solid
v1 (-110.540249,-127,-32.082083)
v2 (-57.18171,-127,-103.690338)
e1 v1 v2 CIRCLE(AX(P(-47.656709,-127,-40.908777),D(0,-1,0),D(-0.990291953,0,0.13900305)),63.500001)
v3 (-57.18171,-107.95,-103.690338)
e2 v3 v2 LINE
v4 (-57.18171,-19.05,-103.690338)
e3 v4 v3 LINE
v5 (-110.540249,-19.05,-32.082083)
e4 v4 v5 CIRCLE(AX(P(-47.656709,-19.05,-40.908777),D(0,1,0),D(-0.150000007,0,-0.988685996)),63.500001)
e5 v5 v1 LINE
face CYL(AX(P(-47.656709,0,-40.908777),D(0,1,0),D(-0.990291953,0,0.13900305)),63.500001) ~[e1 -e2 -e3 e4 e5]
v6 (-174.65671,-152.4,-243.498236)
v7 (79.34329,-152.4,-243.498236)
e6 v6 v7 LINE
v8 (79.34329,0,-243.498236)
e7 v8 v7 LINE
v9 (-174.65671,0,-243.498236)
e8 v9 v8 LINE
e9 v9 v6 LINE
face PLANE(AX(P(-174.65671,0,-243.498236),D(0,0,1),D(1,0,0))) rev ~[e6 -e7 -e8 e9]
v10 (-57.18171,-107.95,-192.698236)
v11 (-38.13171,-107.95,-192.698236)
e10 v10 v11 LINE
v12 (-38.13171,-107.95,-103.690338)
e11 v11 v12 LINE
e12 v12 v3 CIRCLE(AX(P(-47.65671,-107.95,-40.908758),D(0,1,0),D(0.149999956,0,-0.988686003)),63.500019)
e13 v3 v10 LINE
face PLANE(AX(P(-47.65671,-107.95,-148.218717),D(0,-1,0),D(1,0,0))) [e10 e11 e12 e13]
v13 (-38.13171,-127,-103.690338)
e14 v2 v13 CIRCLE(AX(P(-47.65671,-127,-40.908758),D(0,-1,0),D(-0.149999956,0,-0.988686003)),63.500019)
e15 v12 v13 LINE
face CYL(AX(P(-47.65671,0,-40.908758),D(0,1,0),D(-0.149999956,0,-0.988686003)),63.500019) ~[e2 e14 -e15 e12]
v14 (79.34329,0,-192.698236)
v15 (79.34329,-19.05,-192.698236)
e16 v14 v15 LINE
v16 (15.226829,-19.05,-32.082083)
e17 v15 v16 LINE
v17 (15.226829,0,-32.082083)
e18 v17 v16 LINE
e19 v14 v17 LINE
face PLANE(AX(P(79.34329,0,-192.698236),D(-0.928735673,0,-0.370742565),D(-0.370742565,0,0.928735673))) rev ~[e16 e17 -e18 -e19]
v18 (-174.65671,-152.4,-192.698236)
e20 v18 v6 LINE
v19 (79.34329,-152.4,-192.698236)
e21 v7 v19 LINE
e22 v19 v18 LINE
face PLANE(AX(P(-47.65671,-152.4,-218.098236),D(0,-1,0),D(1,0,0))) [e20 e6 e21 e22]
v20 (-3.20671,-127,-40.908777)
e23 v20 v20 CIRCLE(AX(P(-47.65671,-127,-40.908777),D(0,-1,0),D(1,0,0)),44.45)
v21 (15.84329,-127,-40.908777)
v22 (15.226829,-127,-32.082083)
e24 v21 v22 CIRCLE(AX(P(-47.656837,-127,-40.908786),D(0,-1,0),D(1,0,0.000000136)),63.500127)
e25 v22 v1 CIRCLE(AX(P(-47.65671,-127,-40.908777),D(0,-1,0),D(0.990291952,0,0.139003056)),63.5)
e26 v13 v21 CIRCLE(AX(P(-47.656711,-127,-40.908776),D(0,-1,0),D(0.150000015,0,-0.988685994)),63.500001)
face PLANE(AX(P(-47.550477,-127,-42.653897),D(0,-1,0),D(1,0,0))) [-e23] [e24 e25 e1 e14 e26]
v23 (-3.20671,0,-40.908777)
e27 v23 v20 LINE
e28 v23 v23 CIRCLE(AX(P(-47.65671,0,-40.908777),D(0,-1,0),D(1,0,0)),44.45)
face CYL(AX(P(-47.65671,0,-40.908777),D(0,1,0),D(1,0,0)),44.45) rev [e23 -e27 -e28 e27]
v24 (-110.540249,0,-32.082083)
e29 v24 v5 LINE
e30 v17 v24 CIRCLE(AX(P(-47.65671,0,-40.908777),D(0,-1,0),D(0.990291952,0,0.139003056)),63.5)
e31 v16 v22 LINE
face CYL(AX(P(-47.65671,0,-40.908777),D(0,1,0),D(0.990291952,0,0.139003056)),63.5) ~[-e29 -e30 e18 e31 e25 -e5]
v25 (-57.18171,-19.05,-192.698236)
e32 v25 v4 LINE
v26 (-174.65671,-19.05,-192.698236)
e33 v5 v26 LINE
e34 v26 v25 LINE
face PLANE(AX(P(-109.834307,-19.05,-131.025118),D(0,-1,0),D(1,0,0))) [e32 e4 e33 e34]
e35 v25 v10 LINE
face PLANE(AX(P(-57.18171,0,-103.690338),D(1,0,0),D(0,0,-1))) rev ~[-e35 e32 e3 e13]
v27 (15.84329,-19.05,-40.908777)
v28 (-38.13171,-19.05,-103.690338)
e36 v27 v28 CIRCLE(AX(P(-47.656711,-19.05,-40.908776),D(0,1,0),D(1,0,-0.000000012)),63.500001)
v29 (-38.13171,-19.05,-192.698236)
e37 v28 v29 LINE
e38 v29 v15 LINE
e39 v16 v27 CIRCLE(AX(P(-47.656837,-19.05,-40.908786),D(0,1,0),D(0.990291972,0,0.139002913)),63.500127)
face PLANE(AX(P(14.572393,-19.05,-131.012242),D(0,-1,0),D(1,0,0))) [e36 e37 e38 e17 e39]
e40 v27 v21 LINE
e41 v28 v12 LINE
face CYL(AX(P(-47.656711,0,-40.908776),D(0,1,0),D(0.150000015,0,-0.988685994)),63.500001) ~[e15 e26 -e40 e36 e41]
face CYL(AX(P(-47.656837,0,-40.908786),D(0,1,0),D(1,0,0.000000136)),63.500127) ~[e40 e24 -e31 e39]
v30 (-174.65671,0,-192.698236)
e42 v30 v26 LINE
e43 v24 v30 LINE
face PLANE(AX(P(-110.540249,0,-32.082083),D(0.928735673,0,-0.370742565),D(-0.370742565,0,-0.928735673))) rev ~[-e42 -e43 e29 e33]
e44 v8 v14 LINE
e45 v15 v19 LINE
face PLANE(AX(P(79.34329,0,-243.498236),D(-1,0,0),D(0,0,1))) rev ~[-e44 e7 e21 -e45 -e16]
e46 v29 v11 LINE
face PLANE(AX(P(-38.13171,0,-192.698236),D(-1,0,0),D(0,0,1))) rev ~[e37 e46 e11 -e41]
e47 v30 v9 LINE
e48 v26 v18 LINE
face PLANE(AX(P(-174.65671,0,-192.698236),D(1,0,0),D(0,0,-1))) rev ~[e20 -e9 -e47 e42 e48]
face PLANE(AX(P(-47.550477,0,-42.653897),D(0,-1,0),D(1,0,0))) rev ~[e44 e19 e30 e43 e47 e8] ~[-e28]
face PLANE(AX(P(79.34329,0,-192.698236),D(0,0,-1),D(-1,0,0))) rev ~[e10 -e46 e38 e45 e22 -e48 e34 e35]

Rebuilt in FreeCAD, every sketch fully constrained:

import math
import FreeCAD as App
import Part
import Sketcher

V = App.Vector
Q = App.Units.Quantity

doc = App.newDocument("Part")
body = doc.addObject("PartDesign::Body", "Body")

sketch1 = body.newObject("Sketcher::SketchObject", "Sketch")
sketch1.AttachmentSupport = (doc.getObject("XZ_Plane"), [""])
sketch1.MapMode = "FlatFace"
sketch1.addGeometry(Part.LineSegment(V(79, -243, 0), V(79, -193, 0)), False)
sketch1.addGeometry(Part.LineSegment(V(79, -193, 0), V(-175, -193, 0)), False)
sketch1.addGeometry(Part.LineSegment(V(-175, -193, 0), V(-175, -243, 0)), False)
sketch1.addGeometry(Part.LineSegment(V(-175, -243, 0), V(79, -243, 0)), False)
sketch1.addConstraint(Sketcher.Constraint("Coincident", 0, 2, 1, 1))
sketch1.addConstraint(Sketcher.Constraint("Coincident", 1, 2, 2, 1))
sketch1.addConstraint(Sketcher.Constraint("Coincident", 2, 2, 3, 1))
sketch1.addConstraint(Sketcher.Constraint("Coincident", 3, 2, 0, 1))
sketch1.addConstraint(Sketcher.Constraint("Vertical", 0))
sketch1.addConstraint(Sketcher.Constraint("Horizontal", 1))
sketch1.addConstraint(Sketcher.Constraint("Vertical", 2))
sketch1.addConstraint(Sketcher.Constraint("Horizontal", 3))
sketch1.addConstraint(Sketcher.Constraint("DistanceX", 1, 2, 1, 1, Q("10 in")))
sketch1.addConstraint(Sketcher.Constraint("DistanceY", 0, 1, 0, 2, Q("2 in")))
sketch1.addConstraint(Sketcher.Constraint("DistanceX", -1, 1, 0, 2, 79.34329))
sketch1.addConstraint(Sketcher.Constraint("DistanceY", 0, 2, -1, 1, 192.698236))
pad1 = body.newObject("PartDesign::Pad", "Pad")
pad1.Profile = sketch1
pad1.Length = Q("6 in")

sketch2 = body.newObject("Sketcher::SketchObject", "Sketch001")
sketch2.AttachmentSupport = (doc.getObject("XZ_Plane"), [""])
sketch2.MapMode = "FlatFace"
sketch2.addGeometry(Part.ArcOfCircle(Part.Circle(V(-48, -41, 0), V(0, 0, 1), 64), math.radians(172), math.radians(261)), False)
sketch2.addGeometry(Part.LineSegment(V(-111, -32, 0), V(-175, -193, 0)), False)
sketch2.addGeometry(Part.LineSegment(V(-175, -193, 0), V(-57, -193, 0)), False)
sketch2.addGeometry(Part.LineSegment(V(-57, -193, 0), V(-57, -104, 0)), False)
sketch2.addGeometry(Part.ArcOfCircle(Part.Circle(V(-48, -41, 0), V(0, 0, 1), 64), math.radians(0), math.radians(7.99)), False)
sketch2.addGeometry(Part.ArcOfCircle(Part.Circle(V(-48, -41, 0), V(0, 0, 1), 64), math.radians(-81), math.radians(0)), False)
sketch2.addGeometry(Part.LineSegment(V(-38, -104, 0), V(-38, -193, 0)), False)
sketch2.addGeometry(Part.LineSegment(V(-38, -193, 0), V(79, -193, 0)), False)
sketch2.addGeometry(Part.LineSegment(V(79, -193, 0), V(15, -32, 0)), False)
sketch2.addConstraint(Sketcher.Constraint("Coincident", 0, 1, 1, 1))
sketch2.addConstraint(Sketcher.Constraint("Coincident", 1, 2, 2, 1))
sketch2.addConstraint(Sketcher.Constraint("Coincident", 2, 2, 3, 1))
sketch2.addConstraint(Sketcher.Constraint("Coincident", 3, 2, 0, 2))
sketch2.addConstraint(Sketcher.Constraint("Tangent", 4, 1, 5, 2))
sketch2.addConstraint(Sketcher.Constraint("Coincident", 5, 1, 6, 1))
sketch2.addConstraint(Sketcher.Constraint("Coincident", 6, 2, 7, 1))
sketch2.addConstraint(Sketcher.Constraint("Coincident", 7, 2, 8, 1))
sketch2.addConstraint(Sketcher.Constraint("Coincident", 8, 2, 4, 2))
sketch2.addConstraint(Sketcher.Constraint("Horizontal", 2))
sketch2.addConstraint(Sketcher.Constraint("Vertical", 3))
sketch2.addConstraint(Sketcher.Constraint("Vertical", 6))
sketch2.addConstraint(Sketcher.Constraint("Horizontal", 7))
sketch2.addConstraint(Sketcher.Constraint("Coincident", 5, 3, 0, 3))
sketch2.addConstraint(Sketcher.Constraint("Equal", 0, 5))
sketch2.addConstraint(Sketcher.Constraint("Horizontal", 5, 3, 4, 1))
sketch2.addConstraint(Sketcher.Constraint("Horizontal", 3, 2, 5, 1))
sketch2.addConstraint(Sketcher.Constraint("Horizontal", 2, 2, 6, 2))
sketch2.addConstraint(Sketcher.Constraint("Horizontal", 0, 1, 8, 2))
sketch2.addConstraint(Sketcher.Constraint("Equal", 2, 7))
sketch2.addConstraint(Sketcher.Constraint("Radius", 0, Q("2.5 in")))
sketch2.addConstraint(Sketcher.Constraint("DistanceX", 1, 2, 5, 3, Q("5 in")))
sketch2.addConstraint(Sketcher.Constraint("DistanceX", 2, 1, 2, 2, Q("4.625 in")))
sketch2.addConstraint(Sketcher.Constraint("DistanceY", 3, 1, 3, 2, 89.007898))
sketch2.addConstraint(Sketcher.Constraint("Radius", 4, 63.500127))
sketch2.addConstraint(Sketcher.Constraint("DistanceX", 0, 3, -1, 1, 47.656709))
sketch2.addConstraint(Sketcher.Constraint("DistanceX", 0, 1, -1, 1, 110.540249))
sketch2.addConstraint(Sketcher.Constraint("DistanceY", 0, 3, -1, 1, 40.908777))
pad2 = body.newObject("PartDesign::Pad", "Pad001")
pad2.Profile = sketch2
pad2.Length = Q("0.75 in")

sketch3 = body.newObject("Sketcher::SketchObject", "Sketch002")
sketch3.AttachmentSupport = (doc.getObject("XZ_Plane"), [""])
sketch3.MapMode = "FlatFace"
sketch3.addGeometry(Part.ArcOfCircle(Part.Circle(V(-47.656711, -40.908776, 0), V(0, 0, 1), 63.500001), math.radians(-81.373073), math.radians(-0.000001)), False)
sketch3.addGeometry(Part.ArcOfCircle(Part.Circle(V(-47.656837, -40.908786, 0), V(0, 0, 1), 63.500127), math.radians(0.000008), math.radians(7.990153)), False)
sketch3.addGeometry(Part.ArcOfCircle(Part.Circle(V(-47.65671, -40.908777, 0), V(0, 0, 1), 63.5), math.radians(7.990161), math.radians(172.009839)), False)
sketch3.addGeometry(Part.ArcOfCircle(Part.Circle(V(-47.656709, -40.908777, 0), V(0, 0, 1), 63.500001), math.radians(172.009839), math.radians(261.373073)), False)
sketch3.addGeometry(Part.ArcOfCircle(Part.Circle(V(-47.65671, -40.908758, 0), V(0, 0, 1), 63.500019), math.radians(-98.626924), math.radians(-81.373076)), False)
sketch3.addGeometry(Part.Circle(V(-47.65671, -40.908777, 0), V(0, 0, 1), 44.45), False)
sketch3.addConstraint(Sketcher.Constraint("Coincident", 0, 2, 1, 1))
sketch3.addConstraint(Sketcher.Constraint("Coincident", 1, 2, 2, 1))
sketch3.addConstraint(Sketcher.Constraint("Coincident", 2, 2, 3, 1))
sketch3.addConstraint(Sketcher.Constraint("Coincident", 3, 2, 4, 1))
sketch3.addConstraint(Sketcher.Constraint("Coincident", 4, 2, 0, 1))
sketch3.addConstraint(Sketcher.Constraint("Coincident", 2, 3, 0, 3))
sketch3.addConstraint(Sketcher.Constraint("Coincident", 3, 3, 0, 3))
sketch3.addConstraint(Sketcher.Constraint("Coincident", 5, 3, 0, 3))
sketch3.addConstraint(Sketcher.Constraint("Diameter", 5, Q("3.5 in")))
sketch3.addConstraint(Sketcher.Constraint("Radius", 0, Q("2.5 in")))
sketch3.addConstraint(Sketcher.Constraint("Radius", 2, Q("2.5 in")))
sketch3.addConstraint(Sketcher.Constraint("DistanceX", 3, 2, 4, 2, Q("0.75 in")))
sketch3.addConstraint(Sketcher.Constraint("Radius", 4, 63.500019))
sketch3.addConstraint(Sketcher.Constraint("DistanceX", 3, 2, 2, 3, Q("0.375 in")))
sketch3.addConstraint(Sketcher.Constraint("Radius", 1, 63.500127))
sketch3.addConstraint(Sketcher.Constraint("DistanceX", 0, 3, -1, 1, 47.656711))
sketch3.addConstraint(Sketcher.Constraint("DistanceY", 4, 3, -1, 1, 40.908758))
sketch3.addConstraint(Sketcher.Constraint("DistanceX", -1, 1, 1, 2, 15.226829))
sketch3.addConstraint(Sketcher.Constraint("DistanceX", 2, 2, -1, 1, 110.540249))
sketch3.addConstraint(Sketcher.Constraint("DistanceY", 0, 2, -1, 1, 40.908777))
pad3 = body.newObject("PartDesign::Pad", "Pad002")
pad3.Profile = sketch3
pad3.Length = Q("5 in")

sketch4 = body.newObject("Sketcher::SketchObject", "Sketch003")
sketch4.AttachmentSupport = (doc.getObject("XZ_Plane"), [""])
sketch4.MapMode = "FlatFace"
sketch4.addGeometry(Part.LineSegment(V(-38, -193, 0), V(-38, -104, 0)), False)
sketch4.addGeometry(Part.ArcOfCircle(Part.Circle(V(-48, -41, 0), V(0, 0, 1), 64), math.radians(-98.63), math.radians(-81.37)), False)
sketch4.addGeometry(Part.LineSegment(V(-57, -104, 0), V(-57, -193, 0)), False)
sketch4.addGeometry(Part.LineSegment(V(-57, -193, 0), V(-38, -193, 0)), False)
sketch4.addConstraint(Sketcher.Constraint("Coincident", 0, 2, 1, 2))
sketch4.addConstraint(Sketcher.Constraint("Coincident", 1, 1, 2, 1))
sketch4.addConstraint(Sketcher.Constraint("Coincident", 2, 2, 3, 1))
sketch4.addConstraint(Sketcher.Constraint("Coincident", 3, 2, 0, 1))
sketch4.addConstraint(Sketcher.Constraint("Vertical", 0))
sketch4.addConstraint(Sketcher.Constraint("Vertical", 2))
sketch4.addConstraint(Sketcher.Constraint("Horizontal", 3))
sketch4.addConstraint(Sketcher.Constraint("Horizontal", 0, 2, 1, 1))
sketch4.addConstraint(Sketcher.Constraint("DistanceX", 3, 1, 3, 2, Q("0.75 in")))
sketch4.addConstraint(Sketcher.Constraint("Radius", 1, 63.500019))
sketch4.addConstraint(Sketcher.Constraint("DistanceY", 0, 1, 0, 2, 89.007898))
sketch4.addConstraint(Sketcher.Constraint("DistanceX", 1, 3, -1, 1, 47.65671))
sketch4.addConstraint(Sketcher.Constraint("DistanceY", 1, 3, -1, 1, 40.908758))
pad4 = body.newObject("PartDesign::Pad", "Pad003")
pad4.Profile = sketch4
pad4.Length = Q("4.25 in")

doc.recompute()
